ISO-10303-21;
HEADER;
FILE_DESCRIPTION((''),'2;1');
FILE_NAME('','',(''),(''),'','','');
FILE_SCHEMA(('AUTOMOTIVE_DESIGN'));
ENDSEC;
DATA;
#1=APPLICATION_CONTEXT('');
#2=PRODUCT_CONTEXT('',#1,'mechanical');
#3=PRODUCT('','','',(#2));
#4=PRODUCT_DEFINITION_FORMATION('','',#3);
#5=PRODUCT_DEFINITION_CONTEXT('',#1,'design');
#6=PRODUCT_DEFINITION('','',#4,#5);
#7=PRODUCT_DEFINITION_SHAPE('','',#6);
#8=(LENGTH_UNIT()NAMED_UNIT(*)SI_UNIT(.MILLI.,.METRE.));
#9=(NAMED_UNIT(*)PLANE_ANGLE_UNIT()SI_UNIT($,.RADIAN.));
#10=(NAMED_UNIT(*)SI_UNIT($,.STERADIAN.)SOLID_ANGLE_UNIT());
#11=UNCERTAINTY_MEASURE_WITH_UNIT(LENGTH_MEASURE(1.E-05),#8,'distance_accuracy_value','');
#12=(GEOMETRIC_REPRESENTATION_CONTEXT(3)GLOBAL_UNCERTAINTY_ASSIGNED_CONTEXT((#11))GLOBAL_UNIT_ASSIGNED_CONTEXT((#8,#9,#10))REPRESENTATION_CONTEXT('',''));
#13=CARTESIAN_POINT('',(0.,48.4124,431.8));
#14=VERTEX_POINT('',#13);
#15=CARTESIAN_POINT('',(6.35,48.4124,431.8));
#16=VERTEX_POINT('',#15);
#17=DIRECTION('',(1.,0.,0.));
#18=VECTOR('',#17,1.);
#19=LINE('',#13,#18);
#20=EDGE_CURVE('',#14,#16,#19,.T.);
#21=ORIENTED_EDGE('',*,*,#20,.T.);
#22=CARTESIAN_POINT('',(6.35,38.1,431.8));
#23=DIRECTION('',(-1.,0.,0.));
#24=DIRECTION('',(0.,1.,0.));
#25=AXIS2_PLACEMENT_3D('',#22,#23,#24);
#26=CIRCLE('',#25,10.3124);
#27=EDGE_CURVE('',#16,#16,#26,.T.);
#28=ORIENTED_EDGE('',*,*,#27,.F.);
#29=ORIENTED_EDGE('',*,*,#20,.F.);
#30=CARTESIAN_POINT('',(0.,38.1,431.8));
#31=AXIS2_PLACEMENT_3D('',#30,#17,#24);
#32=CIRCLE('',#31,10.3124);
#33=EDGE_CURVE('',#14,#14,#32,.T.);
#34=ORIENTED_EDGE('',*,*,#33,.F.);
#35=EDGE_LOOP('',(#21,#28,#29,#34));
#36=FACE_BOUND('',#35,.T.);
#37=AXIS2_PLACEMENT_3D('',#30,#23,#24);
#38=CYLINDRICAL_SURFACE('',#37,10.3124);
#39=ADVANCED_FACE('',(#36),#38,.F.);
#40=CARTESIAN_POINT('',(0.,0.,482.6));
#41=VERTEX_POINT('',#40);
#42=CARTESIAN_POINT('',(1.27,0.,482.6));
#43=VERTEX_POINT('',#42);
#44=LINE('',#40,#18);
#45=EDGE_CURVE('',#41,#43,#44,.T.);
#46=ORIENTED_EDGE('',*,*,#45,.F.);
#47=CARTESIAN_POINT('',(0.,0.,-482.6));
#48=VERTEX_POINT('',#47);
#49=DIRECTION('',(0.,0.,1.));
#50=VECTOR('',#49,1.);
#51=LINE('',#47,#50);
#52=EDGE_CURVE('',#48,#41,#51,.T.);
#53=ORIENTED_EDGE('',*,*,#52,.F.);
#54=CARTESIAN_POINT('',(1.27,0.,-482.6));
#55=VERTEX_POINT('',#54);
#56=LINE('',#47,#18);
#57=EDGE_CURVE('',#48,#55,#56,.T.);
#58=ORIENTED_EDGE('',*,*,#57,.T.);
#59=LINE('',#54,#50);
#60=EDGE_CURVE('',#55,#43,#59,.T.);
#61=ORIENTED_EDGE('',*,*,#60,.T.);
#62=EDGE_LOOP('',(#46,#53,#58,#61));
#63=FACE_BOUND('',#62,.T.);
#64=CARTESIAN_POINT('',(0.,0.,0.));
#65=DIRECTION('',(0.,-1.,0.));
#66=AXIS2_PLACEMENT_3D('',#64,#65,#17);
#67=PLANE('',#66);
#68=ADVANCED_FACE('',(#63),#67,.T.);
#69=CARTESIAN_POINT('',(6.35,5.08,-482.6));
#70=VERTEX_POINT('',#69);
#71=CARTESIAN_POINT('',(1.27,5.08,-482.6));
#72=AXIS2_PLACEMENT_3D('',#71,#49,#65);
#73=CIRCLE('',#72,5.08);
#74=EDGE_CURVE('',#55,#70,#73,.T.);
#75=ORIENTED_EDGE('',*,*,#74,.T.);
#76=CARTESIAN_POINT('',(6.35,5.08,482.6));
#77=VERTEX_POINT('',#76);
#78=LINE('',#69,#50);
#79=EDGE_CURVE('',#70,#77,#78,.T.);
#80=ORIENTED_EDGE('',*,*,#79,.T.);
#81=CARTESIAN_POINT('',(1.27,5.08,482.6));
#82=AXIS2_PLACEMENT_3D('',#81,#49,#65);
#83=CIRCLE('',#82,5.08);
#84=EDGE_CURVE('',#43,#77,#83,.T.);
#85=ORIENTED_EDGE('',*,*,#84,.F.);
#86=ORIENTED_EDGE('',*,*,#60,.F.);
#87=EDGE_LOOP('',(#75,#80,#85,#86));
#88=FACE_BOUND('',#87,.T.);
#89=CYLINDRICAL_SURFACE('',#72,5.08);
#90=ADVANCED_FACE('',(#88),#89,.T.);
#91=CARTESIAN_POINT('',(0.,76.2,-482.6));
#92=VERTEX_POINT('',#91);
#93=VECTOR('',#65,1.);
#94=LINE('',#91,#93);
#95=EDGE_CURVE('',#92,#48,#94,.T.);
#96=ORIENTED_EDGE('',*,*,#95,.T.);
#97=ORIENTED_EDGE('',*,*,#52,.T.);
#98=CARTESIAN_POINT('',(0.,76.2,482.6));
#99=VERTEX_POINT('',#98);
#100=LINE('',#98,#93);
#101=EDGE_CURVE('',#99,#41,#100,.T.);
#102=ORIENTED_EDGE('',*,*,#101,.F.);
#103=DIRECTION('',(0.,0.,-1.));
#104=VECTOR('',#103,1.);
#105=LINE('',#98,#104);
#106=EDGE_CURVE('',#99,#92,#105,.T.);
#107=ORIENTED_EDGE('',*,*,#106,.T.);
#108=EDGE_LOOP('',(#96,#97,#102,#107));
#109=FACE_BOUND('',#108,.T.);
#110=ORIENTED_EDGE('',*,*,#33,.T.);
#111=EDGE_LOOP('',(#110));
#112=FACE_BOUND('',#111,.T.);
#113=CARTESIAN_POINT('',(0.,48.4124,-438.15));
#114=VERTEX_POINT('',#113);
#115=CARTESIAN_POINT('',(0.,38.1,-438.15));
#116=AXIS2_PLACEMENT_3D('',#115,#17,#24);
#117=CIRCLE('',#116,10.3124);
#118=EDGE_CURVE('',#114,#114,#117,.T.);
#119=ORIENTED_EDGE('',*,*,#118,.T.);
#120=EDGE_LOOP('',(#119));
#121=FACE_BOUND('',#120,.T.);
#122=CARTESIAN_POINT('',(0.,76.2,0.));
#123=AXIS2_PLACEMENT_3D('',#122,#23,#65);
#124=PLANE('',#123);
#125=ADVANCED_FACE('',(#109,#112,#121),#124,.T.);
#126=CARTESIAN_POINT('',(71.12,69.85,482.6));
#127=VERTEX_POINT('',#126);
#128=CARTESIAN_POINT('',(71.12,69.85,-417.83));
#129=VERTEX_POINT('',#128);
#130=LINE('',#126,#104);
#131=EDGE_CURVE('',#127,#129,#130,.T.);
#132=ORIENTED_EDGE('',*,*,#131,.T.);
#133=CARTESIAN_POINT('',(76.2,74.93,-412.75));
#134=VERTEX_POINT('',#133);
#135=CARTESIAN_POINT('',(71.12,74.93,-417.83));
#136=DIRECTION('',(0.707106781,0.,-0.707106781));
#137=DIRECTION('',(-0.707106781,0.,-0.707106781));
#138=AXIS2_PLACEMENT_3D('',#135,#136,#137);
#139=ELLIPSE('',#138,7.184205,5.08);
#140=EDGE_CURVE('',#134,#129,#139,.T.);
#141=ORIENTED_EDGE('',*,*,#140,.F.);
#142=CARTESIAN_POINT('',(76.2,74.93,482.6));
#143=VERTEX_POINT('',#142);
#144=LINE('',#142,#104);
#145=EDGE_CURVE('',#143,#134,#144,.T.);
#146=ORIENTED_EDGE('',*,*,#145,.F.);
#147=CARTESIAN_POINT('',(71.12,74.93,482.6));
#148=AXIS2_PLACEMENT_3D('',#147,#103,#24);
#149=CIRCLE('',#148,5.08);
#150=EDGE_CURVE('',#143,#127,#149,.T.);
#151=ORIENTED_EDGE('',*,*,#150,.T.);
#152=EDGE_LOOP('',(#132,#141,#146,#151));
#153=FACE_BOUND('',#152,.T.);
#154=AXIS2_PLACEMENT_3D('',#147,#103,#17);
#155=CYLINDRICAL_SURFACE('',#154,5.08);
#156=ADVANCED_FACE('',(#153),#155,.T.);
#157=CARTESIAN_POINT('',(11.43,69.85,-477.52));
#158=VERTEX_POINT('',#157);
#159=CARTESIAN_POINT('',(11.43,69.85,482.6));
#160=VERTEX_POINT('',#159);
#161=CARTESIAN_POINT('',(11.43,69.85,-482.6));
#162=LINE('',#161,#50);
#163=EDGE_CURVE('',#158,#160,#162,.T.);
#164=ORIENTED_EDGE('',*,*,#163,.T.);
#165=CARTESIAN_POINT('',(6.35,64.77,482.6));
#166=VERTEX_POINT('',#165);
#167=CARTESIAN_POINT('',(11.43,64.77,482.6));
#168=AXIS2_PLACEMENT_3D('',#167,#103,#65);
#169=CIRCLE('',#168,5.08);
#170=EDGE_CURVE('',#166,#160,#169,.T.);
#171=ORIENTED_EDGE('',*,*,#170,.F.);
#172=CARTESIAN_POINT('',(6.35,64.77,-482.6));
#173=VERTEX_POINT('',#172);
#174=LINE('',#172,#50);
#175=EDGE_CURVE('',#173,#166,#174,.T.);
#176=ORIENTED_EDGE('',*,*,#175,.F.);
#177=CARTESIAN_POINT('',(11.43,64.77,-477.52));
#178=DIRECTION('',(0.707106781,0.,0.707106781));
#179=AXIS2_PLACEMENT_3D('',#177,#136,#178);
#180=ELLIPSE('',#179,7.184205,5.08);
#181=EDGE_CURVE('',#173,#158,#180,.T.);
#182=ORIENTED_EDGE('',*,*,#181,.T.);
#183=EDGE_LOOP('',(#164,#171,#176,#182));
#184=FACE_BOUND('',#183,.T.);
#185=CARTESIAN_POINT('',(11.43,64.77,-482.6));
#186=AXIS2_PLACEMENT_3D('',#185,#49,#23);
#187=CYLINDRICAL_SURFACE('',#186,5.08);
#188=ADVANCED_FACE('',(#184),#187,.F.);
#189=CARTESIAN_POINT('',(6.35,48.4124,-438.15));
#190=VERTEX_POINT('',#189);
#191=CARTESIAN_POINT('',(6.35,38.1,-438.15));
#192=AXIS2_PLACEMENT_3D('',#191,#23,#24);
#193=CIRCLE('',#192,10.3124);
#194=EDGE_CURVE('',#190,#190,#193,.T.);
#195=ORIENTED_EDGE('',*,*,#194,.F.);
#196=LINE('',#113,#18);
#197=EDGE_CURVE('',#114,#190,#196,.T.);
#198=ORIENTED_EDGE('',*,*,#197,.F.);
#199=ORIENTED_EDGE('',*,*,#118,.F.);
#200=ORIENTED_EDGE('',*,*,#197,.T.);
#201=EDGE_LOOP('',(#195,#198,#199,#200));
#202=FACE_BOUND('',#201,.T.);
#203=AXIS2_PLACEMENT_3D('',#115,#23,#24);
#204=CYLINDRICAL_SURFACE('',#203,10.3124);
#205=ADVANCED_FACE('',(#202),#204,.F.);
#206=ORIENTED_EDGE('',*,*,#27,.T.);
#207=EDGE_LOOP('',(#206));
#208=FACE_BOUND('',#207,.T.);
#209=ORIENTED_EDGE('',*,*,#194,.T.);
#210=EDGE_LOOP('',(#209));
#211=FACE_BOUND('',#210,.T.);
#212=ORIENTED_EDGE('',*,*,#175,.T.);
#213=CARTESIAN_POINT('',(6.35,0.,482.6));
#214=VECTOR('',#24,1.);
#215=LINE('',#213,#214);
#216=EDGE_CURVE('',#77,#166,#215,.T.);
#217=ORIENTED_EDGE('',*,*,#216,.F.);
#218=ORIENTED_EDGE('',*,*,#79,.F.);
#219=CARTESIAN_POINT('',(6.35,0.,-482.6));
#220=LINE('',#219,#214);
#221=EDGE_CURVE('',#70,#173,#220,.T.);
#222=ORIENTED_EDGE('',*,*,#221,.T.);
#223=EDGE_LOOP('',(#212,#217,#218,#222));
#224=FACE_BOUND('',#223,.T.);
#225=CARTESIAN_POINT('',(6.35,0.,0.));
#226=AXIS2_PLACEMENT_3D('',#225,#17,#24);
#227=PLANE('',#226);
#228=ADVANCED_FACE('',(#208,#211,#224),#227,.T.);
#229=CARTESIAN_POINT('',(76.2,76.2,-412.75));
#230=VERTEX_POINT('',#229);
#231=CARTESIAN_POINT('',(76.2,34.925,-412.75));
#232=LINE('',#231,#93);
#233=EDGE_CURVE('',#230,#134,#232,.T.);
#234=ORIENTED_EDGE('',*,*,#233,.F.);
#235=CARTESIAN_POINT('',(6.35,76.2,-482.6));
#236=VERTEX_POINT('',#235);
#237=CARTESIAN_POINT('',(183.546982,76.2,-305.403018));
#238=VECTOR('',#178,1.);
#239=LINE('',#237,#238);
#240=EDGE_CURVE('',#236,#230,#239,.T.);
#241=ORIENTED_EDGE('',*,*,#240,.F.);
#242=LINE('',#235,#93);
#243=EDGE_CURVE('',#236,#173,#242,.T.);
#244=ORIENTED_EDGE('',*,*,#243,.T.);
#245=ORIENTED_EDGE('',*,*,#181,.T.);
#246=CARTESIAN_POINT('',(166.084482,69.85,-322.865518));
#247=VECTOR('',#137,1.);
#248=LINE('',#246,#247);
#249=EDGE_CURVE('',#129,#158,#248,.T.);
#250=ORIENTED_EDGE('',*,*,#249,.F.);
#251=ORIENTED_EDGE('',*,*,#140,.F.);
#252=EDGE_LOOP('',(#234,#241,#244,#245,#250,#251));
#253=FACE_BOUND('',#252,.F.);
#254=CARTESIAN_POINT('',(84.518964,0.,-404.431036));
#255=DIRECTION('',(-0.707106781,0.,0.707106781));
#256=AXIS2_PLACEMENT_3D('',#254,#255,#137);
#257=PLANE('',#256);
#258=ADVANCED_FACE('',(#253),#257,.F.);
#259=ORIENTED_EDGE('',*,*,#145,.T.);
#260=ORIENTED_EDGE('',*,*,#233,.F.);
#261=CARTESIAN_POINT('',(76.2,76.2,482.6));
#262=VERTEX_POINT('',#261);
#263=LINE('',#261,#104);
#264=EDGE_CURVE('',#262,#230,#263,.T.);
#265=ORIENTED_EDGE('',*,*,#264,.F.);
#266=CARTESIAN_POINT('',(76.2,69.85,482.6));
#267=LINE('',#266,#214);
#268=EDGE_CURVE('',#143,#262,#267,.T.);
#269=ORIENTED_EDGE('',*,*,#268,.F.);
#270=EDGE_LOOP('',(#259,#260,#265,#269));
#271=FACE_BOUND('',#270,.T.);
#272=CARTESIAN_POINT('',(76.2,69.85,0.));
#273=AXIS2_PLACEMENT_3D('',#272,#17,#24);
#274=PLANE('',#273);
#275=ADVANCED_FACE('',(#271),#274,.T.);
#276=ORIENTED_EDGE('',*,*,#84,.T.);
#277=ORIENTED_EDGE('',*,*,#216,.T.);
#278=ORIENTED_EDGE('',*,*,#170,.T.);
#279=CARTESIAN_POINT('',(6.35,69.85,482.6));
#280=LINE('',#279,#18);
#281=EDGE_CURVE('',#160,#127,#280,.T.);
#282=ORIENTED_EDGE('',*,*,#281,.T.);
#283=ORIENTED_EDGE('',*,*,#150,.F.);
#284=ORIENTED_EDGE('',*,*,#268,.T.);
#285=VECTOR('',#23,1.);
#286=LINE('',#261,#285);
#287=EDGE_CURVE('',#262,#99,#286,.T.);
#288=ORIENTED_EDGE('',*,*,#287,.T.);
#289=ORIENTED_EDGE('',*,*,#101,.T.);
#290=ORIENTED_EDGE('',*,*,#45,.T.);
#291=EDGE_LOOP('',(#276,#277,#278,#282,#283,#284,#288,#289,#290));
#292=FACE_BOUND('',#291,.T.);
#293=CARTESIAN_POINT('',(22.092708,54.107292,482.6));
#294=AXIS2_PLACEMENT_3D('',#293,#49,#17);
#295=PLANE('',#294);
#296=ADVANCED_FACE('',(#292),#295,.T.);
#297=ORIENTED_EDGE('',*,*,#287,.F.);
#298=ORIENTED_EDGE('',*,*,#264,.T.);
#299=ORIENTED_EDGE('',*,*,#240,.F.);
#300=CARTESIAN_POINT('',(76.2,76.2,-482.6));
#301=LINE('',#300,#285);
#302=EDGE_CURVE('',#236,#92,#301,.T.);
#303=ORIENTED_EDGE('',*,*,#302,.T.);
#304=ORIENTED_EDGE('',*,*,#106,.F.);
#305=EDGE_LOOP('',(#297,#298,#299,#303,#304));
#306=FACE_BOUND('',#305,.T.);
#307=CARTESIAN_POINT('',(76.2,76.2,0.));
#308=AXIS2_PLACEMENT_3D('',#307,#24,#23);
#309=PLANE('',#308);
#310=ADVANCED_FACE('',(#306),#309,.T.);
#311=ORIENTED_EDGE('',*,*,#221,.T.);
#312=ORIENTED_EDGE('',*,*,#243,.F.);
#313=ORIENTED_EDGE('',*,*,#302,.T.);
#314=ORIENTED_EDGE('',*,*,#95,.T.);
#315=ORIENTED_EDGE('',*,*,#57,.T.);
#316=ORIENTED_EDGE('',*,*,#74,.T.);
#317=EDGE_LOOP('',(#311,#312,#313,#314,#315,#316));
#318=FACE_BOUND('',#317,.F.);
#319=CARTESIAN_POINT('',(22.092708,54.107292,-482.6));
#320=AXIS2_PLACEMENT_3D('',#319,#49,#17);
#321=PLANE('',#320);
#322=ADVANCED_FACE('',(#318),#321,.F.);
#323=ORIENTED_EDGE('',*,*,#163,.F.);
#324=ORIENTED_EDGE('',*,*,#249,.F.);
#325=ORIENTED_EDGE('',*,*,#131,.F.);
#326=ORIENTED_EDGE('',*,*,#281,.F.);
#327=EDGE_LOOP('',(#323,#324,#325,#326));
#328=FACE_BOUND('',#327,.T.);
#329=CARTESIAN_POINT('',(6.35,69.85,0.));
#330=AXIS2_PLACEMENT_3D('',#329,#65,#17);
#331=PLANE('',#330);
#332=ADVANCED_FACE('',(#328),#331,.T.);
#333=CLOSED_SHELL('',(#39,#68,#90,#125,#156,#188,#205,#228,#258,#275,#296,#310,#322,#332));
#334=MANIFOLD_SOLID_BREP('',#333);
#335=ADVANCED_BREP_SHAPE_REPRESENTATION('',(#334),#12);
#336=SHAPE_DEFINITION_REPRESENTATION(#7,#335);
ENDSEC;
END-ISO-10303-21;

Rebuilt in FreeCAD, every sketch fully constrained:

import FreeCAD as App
import Part
import Sketcher
Q = App.Units.Quantity


def edges_at(feature, points):
    """Names of the edges that pass closest to the given points."""
    edges = feature.Shape.Edges
    near = lambda p: min(range(len(edges)), key=lambda i: edges[i].distToShape(Part.Vertex(*p))[0])
    return sorted({f"Edge{near(p) + 1}" for p in points})


def add_polygon(sketch, points):
    """Adds a closed chain of lines whose ends are joined by coincident constraints."""
    first, n = sketch.GeometryCount, len(points)
    for a, b in zip(points, points[1:] + points[:1]):
        sketch.addGeometry(Part.LineSegment(App.Vector(*a, 0), App.Vector(*b, 0)), False)
    for i in range(n):
        sketch.addConstraint(Sketcher.Constraint("Coincident", first + i, 2, first + (i + 1) % n, 1))

doc = App.newDocument("Part")
body = doc.addObject("PartDesign::Body", "Body")

# Sketch on XY plane
sketch1 = doc.addObject("Sketcher::SketchObject", "Sketch")
body.addObject(sketch1)
sketch1.AttachmentSupport = (doc.XY_Plane, [""])
sketch1.MapMode = "FlatFace"
add_polygon(sketch1, [(0, 76), (0, 0), (6, 0), (6, 70), (76, 70), (76, 76)])  # lines 0-5
sketch1.addConstraint([
    Sketcher.Constraint("Vertical", 0),
    Sketcher.Constraint("Horizontal", 1),
    Sketcher.Constraint("Vertical", 2),
    Sketcher.Constraint("Horizontal", 3),
    Sketcher.Constraint("Vertical", 4),
    Sketcher.Constraint("Horizontal", 5),
    Sketcher.Constraint("Coincident", 0, 2, -1, 1),
    Sketcher.Constraint("Equal", 5, 0),
    Sketcher.Constraint("Equal", 3, 2),
    Sketcher.Constraint("DistanceX", 5, 2, 5, 1, Q("3 in")),
    Sketcher.Constraint("DistanceX", 1, 1, 1, 2, Q("0.25 in")),
])
pad1 = doc.addObject("PartDesign::Pad", "Pad")
body.addObject(pad1)
pad1.Profile = sketch1
pad1.Length = Q("38 in")
pad1.Midplane = True

# Sketch on XZ plane
sketch2 = doc.addObject("Sketcher::SketchObject", "Sketch001")
body.addObject(sketch2)
sketch2.AttachmentSupport = (doc.XZ_Plane, [""])
sketch2.MapMode = "FlatFace"
add_polygon(sketch2, [(85, -404), (6, -483), (85, -483)])  # lines 0-2
sketch2.addConstraint([
    Sketcher.Constraint("Horizontal", 1),
    Sketcher.Constraint("Vertical", 2),
    Sketcher.Constraint("Equal", 1, 2),
    Sketcher.Constraint("DistanceY", 0, 2, -1, 1, Q("19 in")),
    Sketcher.Constraint("DistanceX", -1, 1, 0, 2, Q("0.25 in")),
    Sketcher.Constraint("Distance", 0, Q("110.547609 mm")),
])
pocket1 = doc.addObject("PartDesign::Pocket", "Pocket")
body.addObject(pocket1)
pocket1.Profile = sketch2
pocket1.Type = "ThroughAll"

# Sketch on YZ plane
sketch3 = doc.addObject("Sketcher::SketchObject", "Sketch002")
body.addObject(sketch3)
sketch3.AttachmentSupport = (doc.YZ_Plane, [""])
sketch3.MapMode = "FlatFace"
sketch3.addGeometry([
    Part.Circle(App.Vector(38, -438, 0), App.Vector(0, 0, 1), 10),
    Part.Circle(App.Vector(38, 432, 0), App.Vector(0, 0, 1), 10),
], False)
sketch3.addConstraint([
    Sketcher.Constraint("Equal", 0, 1),
    Sketcher.Constraint("Vertical", 0, 3, 1, 3),
    Sketcher.Constraint("Diameter", 0, Q("0.812 in")),
    Sketcher.Constraint("DistanceY", -1, 1, 1, 3, Q("17 in")),
    Sketcher.Constraint("DistanceX", -1, 1, 0, 3, Q("1.5 in")),
    Sketcher.Constraint("DistanceY", 0, 3, -1, 1, Q("17.25 in")),
])
pocket2 = doc.addObject("PartDesign::Pocket", "Pocket001")
body.addObject(pocket2)
pocket2.Profile = sketch3
pocket2.Type = "ThroughAll"
pocket2.Reversed = True
doc.recompute()

fillet = doc.addObject("PartDesign::Fillet", "Fillet")
body.addObject(fillet)
fillet.Base = (pocket2, edges_at(pocket2, [(6.35, 69.85, 0), (76.2, 69.85, 34.925), (6.35, 0, 0)]))
fillet.Radius = Q("0.2 in")

doc.recompute()
